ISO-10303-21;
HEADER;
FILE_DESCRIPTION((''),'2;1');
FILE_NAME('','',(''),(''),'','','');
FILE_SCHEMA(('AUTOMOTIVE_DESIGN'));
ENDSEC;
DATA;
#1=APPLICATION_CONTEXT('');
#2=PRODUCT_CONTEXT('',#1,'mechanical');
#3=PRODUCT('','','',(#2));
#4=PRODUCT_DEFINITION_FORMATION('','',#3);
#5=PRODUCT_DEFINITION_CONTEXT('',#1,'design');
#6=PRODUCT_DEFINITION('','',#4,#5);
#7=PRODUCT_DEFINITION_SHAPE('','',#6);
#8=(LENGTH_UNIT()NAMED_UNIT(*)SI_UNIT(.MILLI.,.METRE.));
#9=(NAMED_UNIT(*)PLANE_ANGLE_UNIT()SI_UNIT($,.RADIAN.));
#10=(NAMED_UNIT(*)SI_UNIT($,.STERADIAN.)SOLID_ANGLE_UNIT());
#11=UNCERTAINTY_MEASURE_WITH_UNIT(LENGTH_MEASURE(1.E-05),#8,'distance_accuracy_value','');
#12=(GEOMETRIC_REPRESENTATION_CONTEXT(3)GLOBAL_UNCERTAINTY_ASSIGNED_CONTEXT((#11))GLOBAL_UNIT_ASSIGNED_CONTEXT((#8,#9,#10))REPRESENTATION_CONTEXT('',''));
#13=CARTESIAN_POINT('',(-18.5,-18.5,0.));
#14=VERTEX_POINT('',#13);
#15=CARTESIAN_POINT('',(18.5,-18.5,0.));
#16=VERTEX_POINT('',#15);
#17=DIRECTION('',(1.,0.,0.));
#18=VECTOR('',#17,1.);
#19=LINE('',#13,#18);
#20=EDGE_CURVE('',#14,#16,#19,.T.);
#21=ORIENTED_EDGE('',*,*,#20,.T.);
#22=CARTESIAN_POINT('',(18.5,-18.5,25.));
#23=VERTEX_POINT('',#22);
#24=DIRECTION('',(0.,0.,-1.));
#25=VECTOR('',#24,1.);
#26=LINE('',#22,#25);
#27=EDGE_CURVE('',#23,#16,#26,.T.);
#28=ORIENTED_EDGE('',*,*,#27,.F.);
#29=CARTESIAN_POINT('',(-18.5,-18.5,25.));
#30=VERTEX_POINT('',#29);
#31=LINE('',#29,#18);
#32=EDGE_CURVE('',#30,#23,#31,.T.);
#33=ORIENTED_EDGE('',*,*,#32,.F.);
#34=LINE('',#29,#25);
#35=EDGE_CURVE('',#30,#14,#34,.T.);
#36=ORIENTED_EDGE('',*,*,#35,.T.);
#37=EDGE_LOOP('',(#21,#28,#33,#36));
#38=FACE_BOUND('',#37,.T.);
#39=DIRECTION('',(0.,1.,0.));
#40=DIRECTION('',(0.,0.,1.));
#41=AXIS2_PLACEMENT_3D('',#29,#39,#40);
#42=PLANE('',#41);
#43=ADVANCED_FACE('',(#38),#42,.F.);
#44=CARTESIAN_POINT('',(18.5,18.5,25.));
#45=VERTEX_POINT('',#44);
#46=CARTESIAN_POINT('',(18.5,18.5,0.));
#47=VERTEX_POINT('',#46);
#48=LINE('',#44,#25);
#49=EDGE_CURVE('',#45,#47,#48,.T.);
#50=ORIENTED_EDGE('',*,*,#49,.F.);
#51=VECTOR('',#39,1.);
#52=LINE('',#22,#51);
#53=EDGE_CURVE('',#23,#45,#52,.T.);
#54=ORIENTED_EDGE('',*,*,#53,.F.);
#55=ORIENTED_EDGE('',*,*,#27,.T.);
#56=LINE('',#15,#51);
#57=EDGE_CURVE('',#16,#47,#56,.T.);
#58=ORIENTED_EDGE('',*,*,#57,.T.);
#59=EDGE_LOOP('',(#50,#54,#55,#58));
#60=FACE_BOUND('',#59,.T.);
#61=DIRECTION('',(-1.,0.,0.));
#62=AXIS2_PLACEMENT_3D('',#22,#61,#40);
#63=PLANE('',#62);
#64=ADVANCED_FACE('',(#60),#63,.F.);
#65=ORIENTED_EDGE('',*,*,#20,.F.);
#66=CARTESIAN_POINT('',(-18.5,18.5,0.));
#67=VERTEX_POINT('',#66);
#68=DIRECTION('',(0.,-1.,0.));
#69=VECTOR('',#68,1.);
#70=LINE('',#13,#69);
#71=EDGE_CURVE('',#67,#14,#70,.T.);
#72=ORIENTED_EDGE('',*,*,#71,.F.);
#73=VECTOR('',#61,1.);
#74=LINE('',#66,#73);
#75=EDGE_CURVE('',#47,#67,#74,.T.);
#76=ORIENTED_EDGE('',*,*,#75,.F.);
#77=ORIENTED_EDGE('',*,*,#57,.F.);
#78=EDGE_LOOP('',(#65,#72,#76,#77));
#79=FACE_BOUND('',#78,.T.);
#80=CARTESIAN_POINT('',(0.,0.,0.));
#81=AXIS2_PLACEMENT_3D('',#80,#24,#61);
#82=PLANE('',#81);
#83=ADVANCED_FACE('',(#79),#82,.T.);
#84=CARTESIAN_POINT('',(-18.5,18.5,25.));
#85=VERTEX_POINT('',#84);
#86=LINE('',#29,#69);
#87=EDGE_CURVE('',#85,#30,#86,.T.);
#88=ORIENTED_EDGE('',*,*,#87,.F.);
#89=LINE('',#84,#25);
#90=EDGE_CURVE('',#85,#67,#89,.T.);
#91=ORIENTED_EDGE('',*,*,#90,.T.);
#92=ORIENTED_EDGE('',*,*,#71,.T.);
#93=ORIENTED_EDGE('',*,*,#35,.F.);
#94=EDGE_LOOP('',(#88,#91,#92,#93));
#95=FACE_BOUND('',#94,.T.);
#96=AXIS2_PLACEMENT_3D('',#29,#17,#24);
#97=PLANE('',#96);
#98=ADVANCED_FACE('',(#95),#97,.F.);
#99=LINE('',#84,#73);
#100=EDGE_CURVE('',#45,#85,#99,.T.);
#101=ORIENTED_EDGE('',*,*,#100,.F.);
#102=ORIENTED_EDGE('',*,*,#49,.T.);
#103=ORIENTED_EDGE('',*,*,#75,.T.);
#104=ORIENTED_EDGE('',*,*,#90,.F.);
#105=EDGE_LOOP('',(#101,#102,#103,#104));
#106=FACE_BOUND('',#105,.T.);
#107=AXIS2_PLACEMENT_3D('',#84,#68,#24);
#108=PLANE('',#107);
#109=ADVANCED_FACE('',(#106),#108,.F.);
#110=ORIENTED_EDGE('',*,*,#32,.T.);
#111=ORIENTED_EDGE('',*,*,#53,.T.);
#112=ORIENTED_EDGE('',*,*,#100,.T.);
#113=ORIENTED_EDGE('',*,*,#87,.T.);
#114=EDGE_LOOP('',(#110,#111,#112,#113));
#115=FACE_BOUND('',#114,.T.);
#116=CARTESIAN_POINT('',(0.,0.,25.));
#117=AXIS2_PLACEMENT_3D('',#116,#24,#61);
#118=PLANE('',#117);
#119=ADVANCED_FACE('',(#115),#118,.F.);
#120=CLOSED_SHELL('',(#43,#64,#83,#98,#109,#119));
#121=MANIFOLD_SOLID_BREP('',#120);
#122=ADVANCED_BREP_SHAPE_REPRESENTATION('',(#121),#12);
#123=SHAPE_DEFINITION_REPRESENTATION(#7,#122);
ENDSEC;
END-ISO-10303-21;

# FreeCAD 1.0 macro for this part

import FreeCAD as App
import Part
import Sketcher

V = App.Vector
Q = App.Units.Quantity


def add_polygon(sketch, points):
    """Adds a closed chain of lines whose ends are joined by coincident constraints."""
    first, n = sketch.GeometryCount, len(points)
    for a, b in zip(points, points[1:] + points[:1]):
        sketch.addGeometry(Part.LineSegment(App.Vector(*a, 0), App.Vector(*b, 0)), False)
    for i in range(n):
        sketch.addConstraint(Sketcher.Constraint("Coincident", first + i, 2, first + (i + 1) % n, 1))

doc = App.newDocument("Part")
params = doc.addObject("Spreadsheet::Sheet", "Params")
for row, (alias, value) in enumerate([
    ("sketch1_width", "37 mm"),
    ("pad1_length", "25 mm"),
], start=1):
    params.set(f"A{row}", alias)
    params.set(f"B{row}", "=" + value)
    params.setAlias(f"B{row}", alias)

body = doc.addObject("PartDesign::Body", "Body")

sketch1 = body.newObject("Sketcher::SketchObject", "Sketch")
sketch1.AttachmentSupport = (doc.getObject("XY_Plane"), [""])
sketch1.MapMode = "FlatFace"
add_polygon(sketch1, [(-18, 18), (-18, -18), (18, -18), (18, 18)])
sketch1.addConstraint(Sketcher.Constraint("Vertical", 0))
sketch1.addConstraint(Sketcher.Constraint("Horizontal", 1))
sketch1.addConstraint(Sketcher.Constraint("Vertical", 2))
sketch1.addConstraint(Sketcher.Constraint("Horizontal", 3))
sketch1.addConstraint(Sketcher.Constraint("Symmetric", 0, 2, 2, 2, -1, 1))
sketch1.addConstraint(Sketcher.Constraint("Equal", 3, 0))
sketch1.addConstraint(Sketcher.Constraint("DistanceX", 1, 1, 1, 2, Q("37 mm")))
sketch1.setExpression("Constraints[10]", "Params.sketch1_width")
pad1 = body.newObject("PartDesign::Pad", "Pad")
pad1.Profile = sketch1
pad1.setExpression("Length", "Params.pad1_length")

doc.recompute()
